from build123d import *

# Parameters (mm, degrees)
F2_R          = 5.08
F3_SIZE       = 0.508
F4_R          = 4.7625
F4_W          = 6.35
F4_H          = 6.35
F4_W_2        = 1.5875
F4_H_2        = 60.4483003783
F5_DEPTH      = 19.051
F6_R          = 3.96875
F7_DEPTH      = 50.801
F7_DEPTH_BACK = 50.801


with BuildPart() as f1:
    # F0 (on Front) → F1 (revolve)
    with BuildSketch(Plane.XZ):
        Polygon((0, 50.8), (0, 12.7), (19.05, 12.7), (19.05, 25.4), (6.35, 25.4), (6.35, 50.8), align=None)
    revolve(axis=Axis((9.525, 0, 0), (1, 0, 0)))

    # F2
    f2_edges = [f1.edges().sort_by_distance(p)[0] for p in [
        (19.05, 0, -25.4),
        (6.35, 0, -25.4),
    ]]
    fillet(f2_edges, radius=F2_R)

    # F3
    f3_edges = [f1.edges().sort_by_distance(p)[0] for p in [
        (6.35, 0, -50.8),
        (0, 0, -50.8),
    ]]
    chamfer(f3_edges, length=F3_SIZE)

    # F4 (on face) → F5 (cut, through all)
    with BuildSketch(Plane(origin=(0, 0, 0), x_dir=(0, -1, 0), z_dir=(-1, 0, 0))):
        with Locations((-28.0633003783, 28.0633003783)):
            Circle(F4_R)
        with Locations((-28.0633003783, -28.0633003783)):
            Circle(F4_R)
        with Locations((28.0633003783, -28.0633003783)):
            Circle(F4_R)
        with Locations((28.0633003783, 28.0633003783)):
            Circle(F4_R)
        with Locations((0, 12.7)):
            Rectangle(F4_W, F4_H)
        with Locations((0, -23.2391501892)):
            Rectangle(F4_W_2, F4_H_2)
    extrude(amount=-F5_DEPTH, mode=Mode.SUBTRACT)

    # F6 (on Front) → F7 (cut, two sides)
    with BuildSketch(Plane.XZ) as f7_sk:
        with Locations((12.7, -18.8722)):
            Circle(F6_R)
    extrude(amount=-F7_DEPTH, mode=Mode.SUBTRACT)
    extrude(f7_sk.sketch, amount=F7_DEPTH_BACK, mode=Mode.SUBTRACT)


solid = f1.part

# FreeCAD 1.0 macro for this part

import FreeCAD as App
import Part
import Sketcher

V = App.Vector
Q = App.Units.Quantity


def edges_at(feature, points):
    """Names of the edges that pass closest to the given points."""
    edges = feature.Shape.Edges
    near = lambda p: min(range(len(edges)), key=lambda i: edges[i].distToShape(Part.Vertex(*p))[0])
    return sorted({f"Edge{near(p) + 1}" for p in points})


def add_polygon(sketch, points):
    """Adds a closed chain of lines whose ends are joined by coincident constraints."""
    first, n = sketch.GeometryCount, len(points)
    for a, b in zip(points, points[1:] + points[:1]):
        sketch.addGeometry(Part.LineSegment(App.Vector(*a, 0), App.Vector(*b, 0)), False)
    for i in range(n):
        sketch.addConstraint(Sketcher.Constraint("Coincident", first + i, 2, first + (i + 1) % n, 1))

doc = App.newDocument("Part")
body = doc.addObject("PartDesign::Body", "Body")

# Sketch on XZ plane
sketch1 = body.newObject("Sketcher::SketchObject", "Sketch")
sketch1.AttachmentSupport = (doc.getObject("XZ_Plane"), [""])
sketch1.MapMode = "FlatFace"
add_polygon(sketch1, [(0, 51), (0, 13), (19, 13), (19, 25), (6, 25), (6, 51)])  # lines 0-5
sketch1.addConstraint([
    Sketcher.Constraint("Vertical", 0),
    Sketcher.Constraint("Horizontal", 1),
    Sketcher.Constraint("Vertical", 2),
    Sketcher.Constraint("Horizontal", 3),
    Sketcher.Constraint("Vertical", 4),
    Sketcher.Constraint("Horizontal", 5),
    Sketcher.Constraint("PointOnObject", 0, 2, -2),
    Sketcher.Constraint("Equal", 3, 2),
    Sketcher.Constraint("DistanceY", 4, 1, 4, 2, Q("1 in")),
    Sketcher.Constraint("DistanceX", 3, 2, 3, 1, Q("0.5 in")),
    Sketcher.Constraint("DistanceY", -1, 1, 2, 2, Q("1 in")),
    Sketcher.Constraint("DistanceX", 1, 1, 1, 2, Q("0.75 in")),
])
revolution = body.newObject("PartDesign::Revolution", "Revolution")
revolution.Profile = sketch1
revolution.ReferenceAxis = (sketch1, ["H_Axis"])
revolution.Angle = 360
doc.recompute()

fillet = body.newObject("PartDesign::Fillet", "Fillet")
fillet.Base = (revolution, edges_at(revolution, [(19.05, 0, -25.4), (6.35, 0, -25.4)]))
fillet.Radius = Q("0.2 in")
doc.recompute()

chamfer = body.newObject("PartDesign::Chamfer", "Chamfer")
chamfer.Base = (fillet, edges_at(fillet, [(6.35, 0, -50.8), (0, 0, -50.8)]))
chamfer.Size = Q("0.02 in")

# Sketch on YZ plane
sketch2 = body.newObject("Sketcher::SketchObject", "Sketch001")
sketch2.AttachmentSupport = (doc.getObject("YZ_Plane"), [""])
sketch2.MapMode = "FlatFace"
sketch2.addGeometry(Part.Circle(V(28.1, 28.1, 0), V(0, 0, 1), 4.8), False)  # 0
sketch2.addGeometry(Part.Circle(V(28.1, -28.1, 0), V(0, 0, 1), 4.8), False)  # 1
sketch2.addGeometry(Part.Circle(V(-28.1, -28.1, 0), V(0, 0, 1), 4.8), False)  # 2
sketch2.addGeometry(Part.Circle(V(-28.1, 28.1, 0), V(0, 0, 1), 4.8), False)  # 3
add_polygon(sketch2, [(3.2, 15.9), (3.2, 9.5), (-3.2, 9.5), (-3.2, 15.9)])  # lines 4-7
add_polygon(sketch2, [(0.8, 7), (0.8, -53.5), (-0.8, -53.5), (-0.8, 7)])  # lines 8-11
sketch2.addConstraint([
    Sketcher.Constraint("Vertical", 4),
    Sketcher.Constraint("Horizontal", 5),
    Sketcher.Constraint("Vertical", 6),
    Sketcher.Constraint("Horizontal", 7),
    Sketcher.Constraint("Vertical", 8),
    Sketcher.Constraint("Horizontal", 9),
    Sketcher.Constraint("Vertical", 10),
    Sketcher.Constraint("Horizontal", 11),
    Sketcher.Constraint("Equal", 0, 1),
    Sketcher.Constraint("Equal", 1, 2),
    Sketcher.Constraint("Equal", 2, 3),
    Sketcher.Constraint("Symmetric", 0, 3, 2, 3, -1, 1),
    Sketcher.Constraint("Symmetric", 1, 3, 3, 3, -1, 1),
    Sketcher.Constraint("Symmetric", 1, 3, 2, 3, -2),
    Sketcher.Constraint("Equal", 7, 4),
    Sketcher.Constraint("Diameter", 0, Q("0.375 in")),
    Sketcher.Constraint("DistanceY", 8, 2, 1, 3, Q("1 in")),
    Sketcher.Constraint("DistanceX", 5, 2, 5, 1, Q("0.25 in")),
    Sketcher.Constraint("DistanceY", 10, 2, 5, 2, Q("0.1 in")),
    Sketcher.Constraint("DistanceX", 9, 2, 9, 1, Q("0.0625 in")),
    Sketcher.Constraint("DistanceX", -1, 1, 4, 2, Q("0.125 in")),
    Sketcher.Constraint("DistanceY", -1, 1, 4, 2, Q("0.375 in")),
    Sketcher.Constraint("DistanceX", -1, 1, 8, 2, Q("0.03125 in")),
    Sketcher.Constraint("DistanceY", 8, 2, 8, 1, Q("60.4483 mm")),
    Sketcher.Constraint("DistanceX", -1, 1, 0, 3, Q("28.0633 mm")),
])
pocket1 = body.newObject("PartDesign::Pocket", "Pocket")
pocket1.Profile = sketch2
pocket1.Type = "ThroughAll"
pocket1.Reversed = True

# Sketch on XZ plane
sketch3 = body.newObject("Sketcher::SketchObject", "Sketch002")
sketch3.AttachmentSupport = (doc.getObject("XZ_Plane"), [""])
sketch3.MapMode = "FlatFace"
sketch3.addGeometry(Part.Circle(V(12.7, -18.9, 0), V(0, 0, 1), 4), False)
sketch3.addConstraint([
    Sketcher.Constraint("Diameter", 0, Q("0.3125 in")),
    Sketcher.Constraint("DistanceX", -1, 1, 0, 3, Q("0.5 in")),
    Sketcher.Constraint("DistanceY", 0, 3, -1, 1, Q("0.743 in")),
])
pocket2 = body.newObject("PartDesign::Pocket", "Pocket001")
pocket2.Profile = sketch3
pocket2.Type = "ThroughAll"
pocket2.Midplane = True

doc.recompute()
